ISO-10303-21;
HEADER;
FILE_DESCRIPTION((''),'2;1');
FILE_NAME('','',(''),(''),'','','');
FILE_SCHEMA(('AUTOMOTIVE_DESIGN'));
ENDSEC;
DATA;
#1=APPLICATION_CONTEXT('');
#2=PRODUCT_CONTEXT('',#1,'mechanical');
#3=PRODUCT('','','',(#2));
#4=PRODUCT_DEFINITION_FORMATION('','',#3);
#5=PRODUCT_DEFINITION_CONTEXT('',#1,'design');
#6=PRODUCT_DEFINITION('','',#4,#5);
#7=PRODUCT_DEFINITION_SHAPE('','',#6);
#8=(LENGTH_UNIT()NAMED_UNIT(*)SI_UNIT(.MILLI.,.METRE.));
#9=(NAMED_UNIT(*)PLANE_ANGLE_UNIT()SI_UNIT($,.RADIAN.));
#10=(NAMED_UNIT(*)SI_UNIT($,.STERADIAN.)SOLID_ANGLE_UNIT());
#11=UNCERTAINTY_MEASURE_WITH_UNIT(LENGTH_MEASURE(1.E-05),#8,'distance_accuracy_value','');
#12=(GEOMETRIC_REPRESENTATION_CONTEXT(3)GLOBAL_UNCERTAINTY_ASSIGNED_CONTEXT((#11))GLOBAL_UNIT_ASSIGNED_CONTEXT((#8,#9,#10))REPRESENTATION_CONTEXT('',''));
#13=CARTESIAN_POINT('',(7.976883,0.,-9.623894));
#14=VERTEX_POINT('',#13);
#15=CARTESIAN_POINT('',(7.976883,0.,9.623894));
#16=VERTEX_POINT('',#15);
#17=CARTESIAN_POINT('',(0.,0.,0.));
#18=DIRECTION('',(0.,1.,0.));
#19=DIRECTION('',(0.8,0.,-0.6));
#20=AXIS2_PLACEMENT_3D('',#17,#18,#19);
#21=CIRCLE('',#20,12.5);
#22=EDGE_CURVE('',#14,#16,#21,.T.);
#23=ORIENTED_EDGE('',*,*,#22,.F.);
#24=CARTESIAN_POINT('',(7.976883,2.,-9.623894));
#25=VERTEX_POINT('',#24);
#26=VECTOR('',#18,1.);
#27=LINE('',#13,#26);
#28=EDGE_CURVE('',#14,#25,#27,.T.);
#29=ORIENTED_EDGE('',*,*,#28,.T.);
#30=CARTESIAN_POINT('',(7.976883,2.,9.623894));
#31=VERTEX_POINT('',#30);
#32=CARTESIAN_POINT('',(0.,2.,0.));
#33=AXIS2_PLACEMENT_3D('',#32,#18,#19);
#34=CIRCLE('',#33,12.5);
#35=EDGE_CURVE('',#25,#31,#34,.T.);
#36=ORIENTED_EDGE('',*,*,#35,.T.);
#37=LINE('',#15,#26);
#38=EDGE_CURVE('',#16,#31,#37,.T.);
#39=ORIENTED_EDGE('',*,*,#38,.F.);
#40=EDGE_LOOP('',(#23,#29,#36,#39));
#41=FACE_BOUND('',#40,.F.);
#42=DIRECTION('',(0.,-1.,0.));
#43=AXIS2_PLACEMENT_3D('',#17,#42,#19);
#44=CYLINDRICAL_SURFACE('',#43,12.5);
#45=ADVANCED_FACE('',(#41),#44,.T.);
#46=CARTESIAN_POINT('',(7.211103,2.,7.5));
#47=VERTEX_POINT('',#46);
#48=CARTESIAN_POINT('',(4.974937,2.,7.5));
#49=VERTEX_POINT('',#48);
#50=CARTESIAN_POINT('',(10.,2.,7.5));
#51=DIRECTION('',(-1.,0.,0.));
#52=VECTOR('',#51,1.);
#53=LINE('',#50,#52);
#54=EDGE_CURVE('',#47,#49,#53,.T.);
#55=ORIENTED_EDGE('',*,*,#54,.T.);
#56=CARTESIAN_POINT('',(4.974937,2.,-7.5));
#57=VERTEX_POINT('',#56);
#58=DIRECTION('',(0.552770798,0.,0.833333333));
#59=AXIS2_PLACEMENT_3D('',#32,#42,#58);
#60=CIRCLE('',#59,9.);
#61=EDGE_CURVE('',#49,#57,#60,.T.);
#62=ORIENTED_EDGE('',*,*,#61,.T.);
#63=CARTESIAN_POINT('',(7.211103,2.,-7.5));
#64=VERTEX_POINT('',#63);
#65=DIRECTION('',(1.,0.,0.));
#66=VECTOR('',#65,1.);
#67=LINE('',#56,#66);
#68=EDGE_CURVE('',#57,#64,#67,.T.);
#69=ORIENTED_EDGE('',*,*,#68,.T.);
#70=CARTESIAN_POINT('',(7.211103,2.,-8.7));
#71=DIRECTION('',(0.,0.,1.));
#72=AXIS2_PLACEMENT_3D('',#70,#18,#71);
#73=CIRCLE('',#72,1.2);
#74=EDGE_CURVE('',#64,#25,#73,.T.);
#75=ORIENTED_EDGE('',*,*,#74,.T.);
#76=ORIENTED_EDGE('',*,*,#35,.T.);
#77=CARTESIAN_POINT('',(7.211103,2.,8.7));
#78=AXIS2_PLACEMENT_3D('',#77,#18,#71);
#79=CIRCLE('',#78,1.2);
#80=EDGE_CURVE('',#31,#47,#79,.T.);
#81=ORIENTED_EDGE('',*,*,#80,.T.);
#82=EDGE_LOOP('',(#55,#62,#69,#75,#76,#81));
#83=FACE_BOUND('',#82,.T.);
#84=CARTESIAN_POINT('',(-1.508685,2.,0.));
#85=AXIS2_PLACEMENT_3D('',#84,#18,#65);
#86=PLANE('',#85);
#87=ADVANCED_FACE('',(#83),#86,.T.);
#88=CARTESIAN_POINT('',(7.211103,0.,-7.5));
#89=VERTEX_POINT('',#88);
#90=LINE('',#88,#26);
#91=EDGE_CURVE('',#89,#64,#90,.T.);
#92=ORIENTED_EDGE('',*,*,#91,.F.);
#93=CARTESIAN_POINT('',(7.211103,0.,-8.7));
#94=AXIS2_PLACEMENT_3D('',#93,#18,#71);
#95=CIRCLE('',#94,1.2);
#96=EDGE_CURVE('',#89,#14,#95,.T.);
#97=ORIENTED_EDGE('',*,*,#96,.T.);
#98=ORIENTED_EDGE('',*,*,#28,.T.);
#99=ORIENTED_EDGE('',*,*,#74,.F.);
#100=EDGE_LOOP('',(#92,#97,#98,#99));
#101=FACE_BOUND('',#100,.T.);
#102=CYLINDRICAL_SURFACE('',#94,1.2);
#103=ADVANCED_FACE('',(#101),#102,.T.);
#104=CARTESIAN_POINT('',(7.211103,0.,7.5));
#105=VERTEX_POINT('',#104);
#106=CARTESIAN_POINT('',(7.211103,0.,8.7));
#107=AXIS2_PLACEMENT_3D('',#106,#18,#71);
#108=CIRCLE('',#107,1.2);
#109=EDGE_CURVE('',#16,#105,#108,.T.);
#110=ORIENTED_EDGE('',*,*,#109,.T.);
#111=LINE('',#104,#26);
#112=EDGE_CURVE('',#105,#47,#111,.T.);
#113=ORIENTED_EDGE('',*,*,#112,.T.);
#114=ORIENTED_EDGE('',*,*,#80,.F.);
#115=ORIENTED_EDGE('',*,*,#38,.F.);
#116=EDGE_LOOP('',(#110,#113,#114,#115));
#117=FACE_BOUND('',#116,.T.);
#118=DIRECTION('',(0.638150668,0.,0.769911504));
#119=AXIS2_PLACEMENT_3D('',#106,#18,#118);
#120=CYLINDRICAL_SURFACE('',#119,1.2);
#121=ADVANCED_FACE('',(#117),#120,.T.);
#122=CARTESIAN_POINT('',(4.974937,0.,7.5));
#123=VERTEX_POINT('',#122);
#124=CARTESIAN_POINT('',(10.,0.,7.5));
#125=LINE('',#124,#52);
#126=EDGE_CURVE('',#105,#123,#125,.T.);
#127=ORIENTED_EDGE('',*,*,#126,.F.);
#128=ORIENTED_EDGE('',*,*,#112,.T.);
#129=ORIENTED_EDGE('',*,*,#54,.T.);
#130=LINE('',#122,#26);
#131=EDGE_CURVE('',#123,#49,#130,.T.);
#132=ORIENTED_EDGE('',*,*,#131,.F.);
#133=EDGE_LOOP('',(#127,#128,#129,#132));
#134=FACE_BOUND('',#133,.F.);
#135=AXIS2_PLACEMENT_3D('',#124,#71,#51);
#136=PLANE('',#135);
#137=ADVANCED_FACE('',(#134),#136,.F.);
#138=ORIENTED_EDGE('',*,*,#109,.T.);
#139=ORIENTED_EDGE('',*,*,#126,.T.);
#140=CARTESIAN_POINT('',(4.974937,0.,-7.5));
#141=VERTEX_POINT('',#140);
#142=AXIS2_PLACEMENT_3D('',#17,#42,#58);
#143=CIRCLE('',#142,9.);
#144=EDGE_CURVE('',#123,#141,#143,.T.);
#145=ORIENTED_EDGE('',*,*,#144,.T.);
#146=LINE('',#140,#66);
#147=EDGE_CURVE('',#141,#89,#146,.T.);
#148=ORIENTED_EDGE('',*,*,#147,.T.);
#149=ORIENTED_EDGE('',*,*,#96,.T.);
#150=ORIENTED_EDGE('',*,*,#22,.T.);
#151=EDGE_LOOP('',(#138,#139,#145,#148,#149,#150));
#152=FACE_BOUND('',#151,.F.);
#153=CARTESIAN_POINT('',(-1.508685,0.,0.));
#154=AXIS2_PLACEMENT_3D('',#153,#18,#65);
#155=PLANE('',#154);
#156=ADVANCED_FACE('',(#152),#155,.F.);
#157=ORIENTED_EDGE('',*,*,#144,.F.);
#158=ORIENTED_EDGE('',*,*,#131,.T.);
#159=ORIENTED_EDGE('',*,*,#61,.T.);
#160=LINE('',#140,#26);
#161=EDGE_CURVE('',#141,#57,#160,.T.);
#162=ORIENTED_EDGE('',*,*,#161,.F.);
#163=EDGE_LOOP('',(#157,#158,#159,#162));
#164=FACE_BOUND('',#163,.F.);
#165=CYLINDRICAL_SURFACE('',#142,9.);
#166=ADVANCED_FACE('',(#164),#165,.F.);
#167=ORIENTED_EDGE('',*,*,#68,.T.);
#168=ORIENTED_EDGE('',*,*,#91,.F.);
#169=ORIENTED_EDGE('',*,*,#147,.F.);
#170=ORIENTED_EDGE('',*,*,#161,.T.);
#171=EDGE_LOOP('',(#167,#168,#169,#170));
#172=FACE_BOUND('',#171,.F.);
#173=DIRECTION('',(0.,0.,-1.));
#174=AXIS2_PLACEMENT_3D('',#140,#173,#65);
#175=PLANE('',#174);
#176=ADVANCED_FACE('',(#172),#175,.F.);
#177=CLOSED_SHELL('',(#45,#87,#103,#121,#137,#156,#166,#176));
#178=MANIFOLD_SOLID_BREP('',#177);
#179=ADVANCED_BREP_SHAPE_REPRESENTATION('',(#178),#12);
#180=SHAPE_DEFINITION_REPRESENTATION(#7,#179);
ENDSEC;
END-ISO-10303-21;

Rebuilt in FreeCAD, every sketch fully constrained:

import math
import FreeCAD as App
import Part
import Sketcher

V = App.Vector


def edges_at(feature, points):
    """Names of the edges that pass closest to the given points."""
    edges = feature.Shape.Edges
    near = lambda p: min(range(len(edges)), key=lambda i: edges[i].distToShape(Part.Vertex(*p))[0])
    return sorted({f"Edge{near(p) + 1}" for p in points})

doc = App.newDocument("Part")
body = doc.addObject("PartDesign::Body", "Body")

sketch1 = body.newObject("Sketcher::SketchObject", "Sketch")
sketch1.AttachmentSupport = (doc.getObject("XZ_Plane"), [""])
sketch1.MapMode = "FlatFace"
sketch1.addGeometry(Part.LineSegment(V(5, -8, 0), V(10, -8, 0)), False)
sketch1.addGeometry(Part.ArcOfCircle(Part.Circle(V(0, 0, 0), V(0, 0, 1), 12), math.radians(37), math.radians(323)), False)
sketch1.addGeometry(Part.LineSegment(V(10, 8, 0), V(5, 8, 0)), False)
sketch1.addGeometry(Part.ArcOfCircle(Part.Circle(V(0, 0, 0), V(0, 0, 1), 9), math.radians(56), math.radians(304)), False)
sketch1.addConstraint(Sketcher.Constraint("Coincident", 0, 2, 1, 2))
sketch1.addConstraint(Sketcher.Constraint("Coincident", 1, 1, 2, 1))
sketch1.addConstraint(Sketcher.Constraint("Coincident", 2, 2, 3, 1))
sketch1.addConstraint(Sketcher.Constraint("Coincident", 3, 2, 0, 1))
sketch1.addConstraint(Sketcher.Constraint("Horizontal", 0))
sketch1.addConstraint(Sketcher.Constraint("Horizontal", 2))
sketch1.addConstraint(Sketcher.Constraint("Coincident", 1, 3, -1, 1))
sketch1.addConstraint(Sketcher.Constraint("Coincident", 3, 3, -1, 1))
sketch1.addConstraint(Sketcher.Constraint("Vertical", 0, 2, 1, 1))
sketch1.addConstraint(Sketcher.Constraint("Radius", 3, 9.0))
sketch1.addConstraint(Sketcher.Constraint("Radius", 1, 12.5))
sketch1.addConstraint(Sketcher.Constraint("DistanceX", -1, 1, 0, 2, 10.0))
pad1 = body.newObject("PartDesign::Pad", "Pad")
pad1.Profile = sketch1
pad1.Length = 2
pad1.Reversed = True
doc.recompute()

fillet = body.newObject("PartDesign::Fillet", "Fillet")
fillet.Base = (pad1, edges_at(pad1, [(10, 1, 7.5), (10, 1, -7.5)]))
fillet.Radius = 1.2

doc.recompute()
